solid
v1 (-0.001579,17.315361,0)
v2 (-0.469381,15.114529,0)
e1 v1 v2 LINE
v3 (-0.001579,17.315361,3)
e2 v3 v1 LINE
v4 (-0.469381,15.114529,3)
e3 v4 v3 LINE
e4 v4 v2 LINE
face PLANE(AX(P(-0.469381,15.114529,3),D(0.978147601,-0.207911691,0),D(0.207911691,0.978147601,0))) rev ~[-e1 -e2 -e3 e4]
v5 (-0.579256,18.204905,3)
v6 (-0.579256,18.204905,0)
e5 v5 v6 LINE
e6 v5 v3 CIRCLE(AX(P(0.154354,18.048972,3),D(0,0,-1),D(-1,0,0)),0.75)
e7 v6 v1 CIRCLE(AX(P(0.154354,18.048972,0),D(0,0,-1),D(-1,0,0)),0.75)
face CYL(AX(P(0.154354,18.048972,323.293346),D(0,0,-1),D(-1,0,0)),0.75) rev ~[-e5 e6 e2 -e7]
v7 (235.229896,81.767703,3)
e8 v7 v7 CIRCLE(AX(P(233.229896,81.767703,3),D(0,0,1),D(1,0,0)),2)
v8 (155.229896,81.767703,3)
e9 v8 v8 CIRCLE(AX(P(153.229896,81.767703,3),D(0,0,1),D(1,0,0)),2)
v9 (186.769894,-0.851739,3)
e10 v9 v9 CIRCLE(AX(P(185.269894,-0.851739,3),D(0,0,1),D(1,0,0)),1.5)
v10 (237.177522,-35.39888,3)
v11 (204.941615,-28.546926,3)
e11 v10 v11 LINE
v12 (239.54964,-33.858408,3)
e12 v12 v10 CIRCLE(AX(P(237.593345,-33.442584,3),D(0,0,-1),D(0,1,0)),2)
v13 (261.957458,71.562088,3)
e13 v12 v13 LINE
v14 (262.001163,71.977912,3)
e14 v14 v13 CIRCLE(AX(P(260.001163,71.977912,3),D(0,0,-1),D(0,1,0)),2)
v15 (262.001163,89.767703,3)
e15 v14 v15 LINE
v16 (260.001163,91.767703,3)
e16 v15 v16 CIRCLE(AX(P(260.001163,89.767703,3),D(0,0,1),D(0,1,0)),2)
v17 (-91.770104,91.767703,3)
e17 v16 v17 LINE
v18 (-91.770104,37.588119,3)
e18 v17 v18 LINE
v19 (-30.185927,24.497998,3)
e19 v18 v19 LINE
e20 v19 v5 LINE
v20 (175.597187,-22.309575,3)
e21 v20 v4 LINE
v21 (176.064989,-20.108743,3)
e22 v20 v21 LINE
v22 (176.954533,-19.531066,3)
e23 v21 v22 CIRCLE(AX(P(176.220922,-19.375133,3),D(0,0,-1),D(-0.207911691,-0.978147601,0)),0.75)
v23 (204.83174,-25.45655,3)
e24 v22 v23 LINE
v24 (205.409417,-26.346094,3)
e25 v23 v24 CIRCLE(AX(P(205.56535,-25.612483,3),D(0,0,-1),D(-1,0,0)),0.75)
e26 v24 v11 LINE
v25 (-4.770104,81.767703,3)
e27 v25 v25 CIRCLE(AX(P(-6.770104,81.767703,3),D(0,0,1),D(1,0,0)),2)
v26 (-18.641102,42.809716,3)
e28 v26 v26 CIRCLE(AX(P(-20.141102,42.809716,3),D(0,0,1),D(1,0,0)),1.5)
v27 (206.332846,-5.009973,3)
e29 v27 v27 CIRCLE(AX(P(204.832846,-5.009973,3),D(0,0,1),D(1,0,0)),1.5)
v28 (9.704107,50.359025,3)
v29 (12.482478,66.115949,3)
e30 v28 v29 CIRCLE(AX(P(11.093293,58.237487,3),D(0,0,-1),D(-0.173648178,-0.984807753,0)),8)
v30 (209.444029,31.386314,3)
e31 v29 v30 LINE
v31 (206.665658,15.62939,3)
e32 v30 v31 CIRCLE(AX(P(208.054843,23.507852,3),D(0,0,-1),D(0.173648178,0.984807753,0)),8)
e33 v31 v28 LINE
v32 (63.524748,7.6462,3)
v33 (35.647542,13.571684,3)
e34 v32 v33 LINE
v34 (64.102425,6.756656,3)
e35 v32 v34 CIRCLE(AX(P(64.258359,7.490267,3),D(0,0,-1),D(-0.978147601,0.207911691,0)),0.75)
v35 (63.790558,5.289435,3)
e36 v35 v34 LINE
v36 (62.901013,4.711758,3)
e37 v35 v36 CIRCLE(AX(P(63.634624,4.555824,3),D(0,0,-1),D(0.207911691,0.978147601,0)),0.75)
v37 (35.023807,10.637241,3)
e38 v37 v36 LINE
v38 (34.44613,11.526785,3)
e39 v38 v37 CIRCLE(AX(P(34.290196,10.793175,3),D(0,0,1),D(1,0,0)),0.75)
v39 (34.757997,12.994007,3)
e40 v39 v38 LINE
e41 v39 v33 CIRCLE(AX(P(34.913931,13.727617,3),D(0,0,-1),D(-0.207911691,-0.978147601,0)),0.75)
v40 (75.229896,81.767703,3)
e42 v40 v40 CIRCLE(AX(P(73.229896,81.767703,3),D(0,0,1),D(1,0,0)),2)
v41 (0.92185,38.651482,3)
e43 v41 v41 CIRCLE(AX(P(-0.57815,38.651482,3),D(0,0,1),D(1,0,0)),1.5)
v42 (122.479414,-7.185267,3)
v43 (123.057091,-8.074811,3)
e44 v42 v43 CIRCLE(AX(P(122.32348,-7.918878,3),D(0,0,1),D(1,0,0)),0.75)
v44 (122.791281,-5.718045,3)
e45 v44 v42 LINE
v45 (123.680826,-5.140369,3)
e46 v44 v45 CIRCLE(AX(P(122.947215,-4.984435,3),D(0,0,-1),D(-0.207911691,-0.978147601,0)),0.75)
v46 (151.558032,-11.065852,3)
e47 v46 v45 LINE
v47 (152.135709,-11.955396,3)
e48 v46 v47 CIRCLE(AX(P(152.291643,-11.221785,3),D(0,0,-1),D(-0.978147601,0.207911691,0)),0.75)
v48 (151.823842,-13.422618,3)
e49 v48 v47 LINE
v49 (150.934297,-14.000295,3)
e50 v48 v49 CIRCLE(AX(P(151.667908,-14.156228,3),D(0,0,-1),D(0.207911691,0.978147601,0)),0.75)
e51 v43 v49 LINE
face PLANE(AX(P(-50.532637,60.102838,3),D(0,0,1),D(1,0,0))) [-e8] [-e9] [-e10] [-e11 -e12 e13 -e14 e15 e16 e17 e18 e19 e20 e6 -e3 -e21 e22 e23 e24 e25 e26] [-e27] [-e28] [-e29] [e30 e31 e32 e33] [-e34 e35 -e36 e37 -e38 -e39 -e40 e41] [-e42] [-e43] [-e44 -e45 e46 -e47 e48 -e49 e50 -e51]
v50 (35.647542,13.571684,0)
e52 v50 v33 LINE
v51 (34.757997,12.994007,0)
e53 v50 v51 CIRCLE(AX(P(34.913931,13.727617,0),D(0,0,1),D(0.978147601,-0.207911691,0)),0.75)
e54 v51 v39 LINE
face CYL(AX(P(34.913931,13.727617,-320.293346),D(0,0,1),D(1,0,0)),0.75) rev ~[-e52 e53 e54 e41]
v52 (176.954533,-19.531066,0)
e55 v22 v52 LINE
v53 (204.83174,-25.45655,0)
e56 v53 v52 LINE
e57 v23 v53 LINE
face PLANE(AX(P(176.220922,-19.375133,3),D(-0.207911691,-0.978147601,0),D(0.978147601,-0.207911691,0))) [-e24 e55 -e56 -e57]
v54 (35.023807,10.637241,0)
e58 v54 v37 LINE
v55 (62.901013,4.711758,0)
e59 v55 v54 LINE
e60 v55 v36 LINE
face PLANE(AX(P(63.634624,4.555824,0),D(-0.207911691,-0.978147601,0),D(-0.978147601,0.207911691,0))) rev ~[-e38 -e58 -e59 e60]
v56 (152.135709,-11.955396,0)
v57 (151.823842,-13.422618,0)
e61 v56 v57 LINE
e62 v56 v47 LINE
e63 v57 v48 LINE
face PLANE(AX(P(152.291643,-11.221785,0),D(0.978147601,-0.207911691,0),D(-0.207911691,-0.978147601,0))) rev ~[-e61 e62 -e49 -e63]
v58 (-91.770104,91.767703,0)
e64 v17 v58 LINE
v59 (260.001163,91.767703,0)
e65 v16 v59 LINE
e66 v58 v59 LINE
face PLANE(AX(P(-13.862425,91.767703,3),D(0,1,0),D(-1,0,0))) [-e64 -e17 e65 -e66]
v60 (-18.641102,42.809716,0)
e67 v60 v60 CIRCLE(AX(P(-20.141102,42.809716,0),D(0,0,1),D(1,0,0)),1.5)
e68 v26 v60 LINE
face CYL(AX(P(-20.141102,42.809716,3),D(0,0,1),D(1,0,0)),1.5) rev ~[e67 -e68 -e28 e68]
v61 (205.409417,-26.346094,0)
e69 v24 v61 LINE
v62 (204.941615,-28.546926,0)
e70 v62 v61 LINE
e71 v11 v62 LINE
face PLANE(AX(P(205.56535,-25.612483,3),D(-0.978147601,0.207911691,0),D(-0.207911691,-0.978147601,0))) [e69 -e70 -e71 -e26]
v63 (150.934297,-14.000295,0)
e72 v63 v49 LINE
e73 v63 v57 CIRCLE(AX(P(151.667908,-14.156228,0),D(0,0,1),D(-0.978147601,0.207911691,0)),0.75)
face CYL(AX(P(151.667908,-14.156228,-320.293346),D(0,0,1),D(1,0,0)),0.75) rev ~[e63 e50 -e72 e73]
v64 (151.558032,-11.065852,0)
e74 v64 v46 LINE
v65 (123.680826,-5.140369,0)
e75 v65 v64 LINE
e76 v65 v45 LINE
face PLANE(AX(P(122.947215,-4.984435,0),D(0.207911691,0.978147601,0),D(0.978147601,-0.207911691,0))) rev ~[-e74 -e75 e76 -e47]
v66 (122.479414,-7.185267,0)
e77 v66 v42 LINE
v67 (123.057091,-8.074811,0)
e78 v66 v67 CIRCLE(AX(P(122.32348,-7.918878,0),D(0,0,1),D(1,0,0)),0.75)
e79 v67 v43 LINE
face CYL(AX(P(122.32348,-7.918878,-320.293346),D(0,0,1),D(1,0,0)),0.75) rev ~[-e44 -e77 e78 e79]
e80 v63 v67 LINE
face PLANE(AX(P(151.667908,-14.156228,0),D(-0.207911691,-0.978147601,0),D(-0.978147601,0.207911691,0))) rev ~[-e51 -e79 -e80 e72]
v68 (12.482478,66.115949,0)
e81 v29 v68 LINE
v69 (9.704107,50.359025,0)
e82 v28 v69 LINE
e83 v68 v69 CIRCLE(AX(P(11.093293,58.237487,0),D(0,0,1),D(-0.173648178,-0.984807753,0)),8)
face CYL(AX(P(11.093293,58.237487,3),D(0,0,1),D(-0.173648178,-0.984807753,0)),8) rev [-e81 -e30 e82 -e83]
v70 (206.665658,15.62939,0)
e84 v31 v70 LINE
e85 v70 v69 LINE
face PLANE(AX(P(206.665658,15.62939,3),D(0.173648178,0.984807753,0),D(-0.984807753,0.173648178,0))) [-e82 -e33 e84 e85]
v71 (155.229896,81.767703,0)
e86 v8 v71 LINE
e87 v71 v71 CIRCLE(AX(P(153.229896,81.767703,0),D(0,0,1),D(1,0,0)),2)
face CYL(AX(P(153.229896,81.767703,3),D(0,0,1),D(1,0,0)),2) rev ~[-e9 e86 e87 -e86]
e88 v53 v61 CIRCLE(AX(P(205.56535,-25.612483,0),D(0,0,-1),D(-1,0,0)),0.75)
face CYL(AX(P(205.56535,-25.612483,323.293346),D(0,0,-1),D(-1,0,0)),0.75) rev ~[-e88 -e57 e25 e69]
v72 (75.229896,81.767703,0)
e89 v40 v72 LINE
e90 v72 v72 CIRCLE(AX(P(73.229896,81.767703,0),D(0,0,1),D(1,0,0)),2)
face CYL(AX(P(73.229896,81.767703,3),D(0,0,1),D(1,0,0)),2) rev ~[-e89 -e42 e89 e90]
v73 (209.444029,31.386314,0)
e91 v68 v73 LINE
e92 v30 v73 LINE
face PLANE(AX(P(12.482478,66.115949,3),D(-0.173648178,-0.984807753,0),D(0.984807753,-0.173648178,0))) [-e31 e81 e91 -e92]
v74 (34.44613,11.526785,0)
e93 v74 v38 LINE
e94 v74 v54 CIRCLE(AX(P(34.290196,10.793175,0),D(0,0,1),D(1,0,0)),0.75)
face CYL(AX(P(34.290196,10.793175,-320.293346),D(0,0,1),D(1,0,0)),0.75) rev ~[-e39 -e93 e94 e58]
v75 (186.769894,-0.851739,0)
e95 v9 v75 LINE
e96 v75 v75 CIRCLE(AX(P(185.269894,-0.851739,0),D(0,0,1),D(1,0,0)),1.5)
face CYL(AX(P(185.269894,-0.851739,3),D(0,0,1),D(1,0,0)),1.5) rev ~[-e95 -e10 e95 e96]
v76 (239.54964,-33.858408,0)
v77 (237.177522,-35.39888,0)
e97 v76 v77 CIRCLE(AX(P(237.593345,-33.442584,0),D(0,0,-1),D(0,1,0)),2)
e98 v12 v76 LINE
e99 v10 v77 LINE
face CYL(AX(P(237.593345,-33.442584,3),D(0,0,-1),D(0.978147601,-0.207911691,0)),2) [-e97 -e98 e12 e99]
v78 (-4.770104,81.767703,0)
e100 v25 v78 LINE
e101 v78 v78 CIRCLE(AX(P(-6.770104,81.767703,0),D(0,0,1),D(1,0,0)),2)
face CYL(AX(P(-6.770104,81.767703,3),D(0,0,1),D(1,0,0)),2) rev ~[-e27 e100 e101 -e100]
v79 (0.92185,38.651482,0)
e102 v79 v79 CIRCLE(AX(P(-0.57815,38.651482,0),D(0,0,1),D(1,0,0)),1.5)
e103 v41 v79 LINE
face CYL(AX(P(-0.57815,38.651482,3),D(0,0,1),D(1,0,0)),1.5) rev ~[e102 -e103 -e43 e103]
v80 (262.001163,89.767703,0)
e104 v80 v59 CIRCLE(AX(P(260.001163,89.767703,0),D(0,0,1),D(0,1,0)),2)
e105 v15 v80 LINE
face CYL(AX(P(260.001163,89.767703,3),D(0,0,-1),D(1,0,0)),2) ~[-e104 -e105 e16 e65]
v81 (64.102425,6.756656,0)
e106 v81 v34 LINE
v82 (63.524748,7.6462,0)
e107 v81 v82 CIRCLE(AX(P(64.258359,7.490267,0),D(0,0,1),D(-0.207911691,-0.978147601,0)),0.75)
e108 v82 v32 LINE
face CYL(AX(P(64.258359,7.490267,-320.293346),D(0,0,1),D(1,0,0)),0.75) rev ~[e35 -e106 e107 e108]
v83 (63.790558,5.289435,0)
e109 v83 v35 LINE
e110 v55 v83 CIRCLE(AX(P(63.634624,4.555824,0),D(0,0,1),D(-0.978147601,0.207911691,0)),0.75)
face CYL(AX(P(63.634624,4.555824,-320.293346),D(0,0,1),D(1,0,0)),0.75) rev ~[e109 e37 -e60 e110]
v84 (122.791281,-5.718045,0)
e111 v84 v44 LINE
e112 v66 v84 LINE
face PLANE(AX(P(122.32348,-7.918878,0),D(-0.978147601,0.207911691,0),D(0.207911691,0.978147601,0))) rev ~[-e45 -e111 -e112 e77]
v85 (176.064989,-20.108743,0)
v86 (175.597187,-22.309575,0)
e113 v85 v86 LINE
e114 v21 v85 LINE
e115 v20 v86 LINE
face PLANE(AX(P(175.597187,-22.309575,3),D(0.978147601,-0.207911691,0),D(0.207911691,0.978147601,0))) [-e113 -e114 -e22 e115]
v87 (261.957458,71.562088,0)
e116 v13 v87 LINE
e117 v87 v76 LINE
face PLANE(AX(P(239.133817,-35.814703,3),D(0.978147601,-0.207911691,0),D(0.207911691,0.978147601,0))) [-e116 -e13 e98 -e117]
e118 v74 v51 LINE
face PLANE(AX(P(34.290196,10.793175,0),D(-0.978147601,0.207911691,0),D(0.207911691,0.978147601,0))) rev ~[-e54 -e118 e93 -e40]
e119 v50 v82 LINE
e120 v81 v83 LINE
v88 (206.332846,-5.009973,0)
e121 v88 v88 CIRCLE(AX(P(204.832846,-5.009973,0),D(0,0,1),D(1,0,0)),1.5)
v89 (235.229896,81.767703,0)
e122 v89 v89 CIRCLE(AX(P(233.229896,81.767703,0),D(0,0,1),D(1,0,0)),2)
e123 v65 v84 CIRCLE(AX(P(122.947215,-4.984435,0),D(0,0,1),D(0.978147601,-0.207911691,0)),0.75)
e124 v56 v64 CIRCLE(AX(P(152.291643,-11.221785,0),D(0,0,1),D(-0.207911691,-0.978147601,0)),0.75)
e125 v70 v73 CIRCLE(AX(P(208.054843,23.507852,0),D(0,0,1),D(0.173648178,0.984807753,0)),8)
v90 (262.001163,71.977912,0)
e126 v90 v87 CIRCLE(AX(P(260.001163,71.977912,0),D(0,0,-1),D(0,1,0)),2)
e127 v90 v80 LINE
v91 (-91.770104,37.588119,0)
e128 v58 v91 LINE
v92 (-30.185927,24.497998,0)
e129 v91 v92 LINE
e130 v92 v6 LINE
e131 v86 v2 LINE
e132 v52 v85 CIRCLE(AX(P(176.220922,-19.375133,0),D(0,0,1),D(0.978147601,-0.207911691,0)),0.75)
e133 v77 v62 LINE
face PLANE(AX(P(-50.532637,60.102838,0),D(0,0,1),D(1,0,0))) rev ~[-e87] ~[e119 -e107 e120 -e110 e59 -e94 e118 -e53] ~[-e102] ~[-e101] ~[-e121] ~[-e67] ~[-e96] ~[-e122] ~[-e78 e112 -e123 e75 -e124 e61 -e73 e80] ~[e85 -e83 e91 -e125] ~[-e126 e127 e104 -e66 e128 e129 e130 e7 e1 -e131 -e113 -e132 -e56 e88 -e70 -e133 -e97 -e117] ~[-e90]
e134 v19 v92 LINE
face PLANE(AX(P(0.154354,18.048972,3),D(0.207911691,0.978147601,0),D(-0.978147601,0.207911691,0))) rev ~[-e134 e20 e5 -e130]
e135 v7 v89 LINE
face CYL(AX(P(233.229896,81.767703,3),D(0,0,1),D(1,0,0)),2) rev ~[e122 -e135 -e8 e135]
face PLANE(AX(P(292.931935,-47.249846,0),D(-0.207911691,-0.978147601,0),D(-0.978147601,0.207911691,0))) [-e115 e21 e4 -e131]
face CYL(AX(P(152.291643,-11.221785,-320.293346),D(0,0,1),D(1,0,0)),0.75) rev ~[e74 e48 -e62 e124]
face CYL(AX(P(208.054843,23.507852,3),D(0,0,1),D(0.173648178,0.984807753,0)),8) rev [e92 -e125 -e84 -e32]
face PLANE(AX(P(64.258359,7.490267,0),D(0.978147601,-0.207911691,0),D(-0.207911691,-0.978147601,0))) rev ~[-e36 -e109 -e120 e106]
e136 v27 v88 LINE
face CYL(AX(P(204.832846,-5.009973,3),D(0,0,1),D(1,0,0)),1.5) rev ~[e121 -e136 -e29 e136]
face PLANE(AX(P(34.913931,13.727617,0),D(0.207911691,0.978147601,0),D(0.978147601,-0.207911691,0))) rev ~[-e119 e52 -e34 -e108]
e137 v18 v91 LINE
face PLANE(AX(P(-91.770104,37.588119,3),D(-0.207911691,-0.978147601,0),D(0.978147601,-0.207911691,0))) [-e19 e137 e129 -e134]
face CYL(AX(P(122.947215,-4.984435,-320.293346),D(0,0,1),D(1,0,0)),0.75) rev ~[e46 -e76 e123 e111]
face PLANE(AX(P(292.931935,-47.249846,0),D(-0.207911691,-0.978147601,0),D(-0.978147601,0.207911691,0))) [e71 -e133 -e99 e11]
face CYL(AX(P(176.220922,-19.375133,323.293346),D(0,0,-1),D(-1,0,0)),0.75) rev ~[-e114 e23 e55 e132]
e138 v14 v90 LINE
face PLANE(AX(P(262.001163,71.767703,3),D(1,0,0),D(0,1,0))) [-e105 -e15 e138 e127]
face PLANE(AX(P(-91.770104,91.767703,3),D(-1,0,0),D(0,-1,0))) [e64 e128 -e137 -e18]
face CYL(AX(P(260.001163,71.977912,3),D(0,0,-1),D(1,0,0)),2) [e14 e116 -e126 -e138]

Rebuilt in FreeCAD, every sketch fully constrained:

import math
import FreeCAD as App
import Part
import Sketcher
Q = App.Units.Quantity


def edges_at(feature, points):
    """Names of the edges that pass closest to the given points."""
    edges = feature.Shape.Edges
    near = lambda p: min(range(len(edges)), key=lambda i: edges[i].distToShape(Part.Vertex(*p))[0])
    return sorted({f"Edge{near(p) + 1}" for p in points})

doc = App.newDocument("Part")
body = doc.addObject("PartDesign::Body", "Body")

# Sketch on XY plane
sketch1 = body.newObject("Sketcher::SketchObject", "Sketch")
sketch1.AttachmentSupport = (doc.getObject("XY_Plane"), [""])
sketch1.MapMode = "FlatFace"
sketch1.addGeometry(Part.LineSegment(App.Vector(318.229896, 71.767703, 0), App.Vector(-31.770104, 71.767703, 0)), False)
sketch1.addGeometry(Part.LineSegment(App.Vector(-31.770104, 71.767703, 0), App.Vector(-31.770104, 21.767703, 0)), False)
sketch1.addGeometry(Part.LineSegment(App.Vector(-31.770104, 21.767703, 0), App.Vector(292.931935, -47.249846, 0)), False)
sketch1.addGeometry(Part.LineSegment(App.Vector(292.931935, -47.249846, 0), App.Vector(318.229896, 71.767703, 0)), False)
sketch1.addConstraint(Sketcher.Constraint("Coincident", 0, 2, 1, 1))
sketch1.addConstraint(Sketcher.Constraint("Coincident", 1, 2, 2, 1))
sketch1.addConstraint(Sketcher.Constraint("Coincident", 2, 2, 3, 1))
sketch1.addConstraint(Sketcher.Constraint("Coincident", 3, 2, 0, 1))
sketch1.addConstraint(Sketcher.Constraint("Horizontal", 0))
sketch1.addConstraint(Sketcher.Constraint("Vertical", 1))
sketch1.addConstraint(Sketcher.Constraint("Perpendicular", 2, 3))
sketch1.addConstraint(Sketcher.Constraint("DistanceX", 0, 2, 0, 1, Q("350 mm")))
sketch1.addConstraint(Sketcher.Constraint("DistanceY", 1, 2, 1, 1, Q("50 mm")))
sketch1.addConstraint(Sketcher.Constraint("Angle", 2, Q("-12 deg")))
sketch1.addConstraint(Sketcher.Constraint("DistanceX", 0, 2, -1, 1, Q("31.770104 mm")))
sketch1.addConstraint(Sketcher.Constraint("DistanceY", -1, 1, 0, 2, Q("71.767703 mm")))
pad1 = body.newObject("PartDesign::Pad", "Pad")
pad1.Profile = sketch1
pad1.Length = 3

# Sketch on XY plane
sketch2 = body.newObject("Sketcher::SketchObject", "Sketch001")
sketch2.AttachmentSupport = (doc.getObject("XY_Plane"), [""])
sketch2.MapMode = "FlatFace"
sketch2.AttachmentOffset = App.Placement(App.Vector(0, 0, 3), App.Rotation())
sketch2.addGeometry(Part.LineSegment(App.Vector(-0.469381, 15.114529, 0), App.Vector(0.154354, 18.048972, 0)), False)
sketch2.addGeometry(Part.LineSegment(App.Vector(0.154354, 18.048972, 0), App.Vector(-31.770104, 24.834725, 0)), False)
sketch2.addGeometry(Part.LineSegment(App.Vector(-31.770104, 24.834725, 0), App.Vector(-31.770104, 21.767703, 0)), False)
sketch2.addGeometry(Part.LineSegment(App.Vector(-31.770104, 21.767703, 0), App.Vector(-0.469381, 15.114529, 0)), False)
sketch2.addGeometry(Part.LineSegment(App.Vector(205.56535, -25.612483, 0), App.Vector(176.220922, -19.375133, 0)), False)
sketch2.addGeometry(Part.LineSegment(App.Vector(176.220922, -19.375133, 0), App.Vector(175.597187, -22.309575, 0)), False)
sketch2.addGeometry(Part.LineSegment(App.Vector(175.597187, -22.309575, 0), App.Vector(204.941615, -28.546926, 0)), False)
sketch2.addGeometry(Part.LineSegment(App.Vector(204.941615, -28.546926, 0), App.Vector(205.56535, -25.612483, 0)), False)
sketch2.addConstraint(Sketcher.Constraint("Coincident", 0, 2, 1, 1))
sketch2.addConstraint(Sketcher.Constraint("Coincident", 1, 2, 2, 1))
sketch2.addConstraint(Sketcher.Constraint("Coincident", 2, 2, 3, 1))
sketch2.addConstraint(Sketcher.Constraint("Coincident", 3, 2, 0, 1))
sketch2.addConstraint(Sketcher.Constraint("Coincident", 4, 2, 5, 1))
sketch2.addConstraint(Sketcher.Constraint("Coincident", 5, 2, 6, 1))
sketch2.addConstraint(Sketcher.Constraint("Coincident", 6, 2, 7, 1))
sketch2.addConstraint(Sketcher.Constraint("Coincident", 7, 2, 4, 1))
sketch2.addConstraint(Sketcher.Constraint("Vertical", 2))
sketch2.addConstraint(Sketcher.Constraint("Perpendicular", 0, 1))
sketch2.addConstraint(Sketcher.Constraint("Parallel", 1, 3))
sketch2.addConstraint(Sketcher.Constraint("Parallel", 3, 4))
sketch2.addConstraint(Sketcher.Constraint("Perpendicular", 4, 5))
sketch2.addConstraint(Sketcher.Constraint("Perpendicular", 5, 6))
sketch2.addConstraint(Sketcher.Constraint("Perpendicular", 6, 7))
sketch2.addConstraint(Sketcher.Constraint("Equal", 0, 5))
sketch2.addConstraint(Sketcher.Constraint("Angle", 0, Q("78 deg")))
sketch2.addConstraint(Sketcher.Constraint("Distance", 0, Q("3 mm")))
sketch2.addConstraint(Sketcher.Constraint("Distance", 3, Q("32 mm")))
sketch2.addConstraint(Sketcher.Constraint("Distance", 4, Q("30 mm")))
sketch2.addConstraint(Sketcher.Constraint("DistanceY", 5, 2, 1, 2, Q("47.1443 mm")))
sketch2.addConstraint(Sketcher.Constraint("DistanceY", -1, 1, 0, 2, Q("18.048972 mm")))
sketch2.addConstraint(Sketcher.Constraint("DistanceX", 3, 2, -1, 1, Q("0.469381 mm")))
sketch2.addConstraint(Sketcher.Constraint("DistanceX", -1, 1, 7, 2, Q("205.56535 mm")))
pocket1 = body.newObject("PartDesign::Pocket", "Pocket")
pocket1.Profile = sketch2
pocket1.Length = 10

# Sketch on XY plane
sketch3 = body.newObject("Sketcher::SketchObject", "Sketch002")
sketch3.AttachmentSupport = (doc.getObject("XY_Plane"), [""])
sketch3.MapMode = "FlatFace"
sketch3.AttachmentOffset = App.Placement(App.Vector(0, 0, 3), App.Rotation())
sketch3.addGeometry(Part.LineSegment(App.Vector(239.133817, -35.814703, 0), App.Vector(292.931935, -47.249846, 0)), False)
sketch3.addGeometry(Part.LineSegment(App.Vector(292.931935, -47.249846, 0), App.Vector(318.229896, 71.767703, 0)), False)
sketch3.addGeometry(Part.LineSegment(App.Vector(318.229896, 71.767703, 0), App.Vector(262.001163, 71.767703, 0)), False)
sketch3.addGeometry(Part.LineSegment(App.Vector(262.001163, 71.767703, 0), App.Vector(239.133817, -35.814703, 0)), False)
sketch3.addConstraint(Sketcher.Constraint("Coincident", 0, 2, 1, 1))
sketch3.addConstraint(Sketcher.Constraint("Coincident", 1, 2, 2, 1))
sketch3.addConstraint(Sketcher.Constraint("Coincident", 2, 2, 3, 1))
sketch3.addConstraint(Sketcher.Constraint("Coincident", 3, 2, 0, 1))
sketch3.addConstraint(Sketcher.Constraint("Horizontal", 2))
sketch3.addConstraint(Sketcher.Constraint("Perpendicular", 0, 1))
sketch3.addConstraint(Sketcher.Constraint("Parallel", 1, 3))
sketch3.addConstraint(Sketcher.Constraint("Angle", 0, Q("-12 deg")))
sketch3.addConstraint(Sketcher.Constraint("Distance", 0, Q("55 mm")))
sketch3.addConstraint(Sketcher.Constraint("Distance", 1, Q("121.676472 mm")))
sketch3.addConstraint(Sketcher.Constraint("DistanceX", -1, 1, 0, 2, Q("292.931935 mm")))
sketch3.addConstraint(Sketcher.Constraint("DistanceY", 0, 2, -1, 1, Q("47.249846 mm")))
pocket2 = body.newObject("PartDesign::Pocket", "Pocket001")
pocket2.Profile = sketch3
pocket2.Type = "ThroughAll"

# Sketch on XY plane
sketch4 = body.newObject("Sketcher::SketchObject", "Sketch003")
sketch4.AttachmentSupport = (doc.getObject("XY_Plane"), [""])
sketch4.MapMode = "FlatFace"
sketch4.AttachmentOffset = App.Placement(App.Vector(0, 0, 3), App.Rotation())
sketch4.addGeometry(Part.LineSegment(App.Vector(-31.770104, 91.767703, 0), App.Vector(-31.770104, 71.767703, 0)), False)
sketch4.addGeometry(Part.LineSegment(App.Vector(-31.770104, 71.767703, 0), App.Vector(262.001163, 71.767703, 0)), False)
sketch4.addGeometry(Part.LineSegment(App.Vector(262.001163, 71.767703, 0), App.Vector(262.001163, 91.767703, 0)), False)
sketch4.addGeometry(Part.LineSegment(App.Vector(262.001163, 91.767703, 0), App.Vector(-31.770104, 91.767703, 0)), False)
sketch4.addConstraint(Sketcher.Constraint("Coincident", 0, 2, 1, 1))
sketch4.addConstraint(Sketcher.Constraint("Coincident", 1, 2, 2, 1))
sketch4.addConstraint(Sketcher.Constraint("Coincident", 2, 2, 3, 1))
sketch4.addConstraint(Sketcher.Constraint("Coincident", 3, 2, 0, 1))
sketch4.addConstraint(Sketcher.Constraint("Vertical", 0))
sketch4.addConstraint(Sketcher.Constraint("Horizontal", 1))
sketch4.addConstraint(Sketcher.Constraint("Vertical", 2))
sketch4.addConstraint(Sketcher.Constraint("Horizontal", 3))
sketch4.addConstraint(Sketcher.Constraint("DistanceY", 0, 2, 0, 1, Q("20 mm")))
sketch4.addConstraint(Sketcher.Constraint("DistanceX", 1, 1, 1, 2, Q("293.771267 mm")))
sketch4.addConstraint(Sketcher.Constraint("DistanceX", 0, 2, -1, 1, Q("31.770104 mm")))
sketch4.addConstraint(Sketcher.Constraint("DistanceY", -1, 1, 0, 2, Q("71.767703 mm")))
pad2 = body.newObject("PartDesign::Pad", "Pad001")
pad2.Profile = sketch4
pad2.Length = 3
pad2.Reversed = True

# Sketch on XY plane
sketch5 = body.newObject("Sketcher::SketchObject", "Sketch004")
sketch5.AttachmentSupport = (doc.getObject("XY_Plane"), [""])
sketch5.MapMode = "FlatFace"
sketch5.AttachmentOffset = App.Placement(App.Vector(0, 0, 3), App.Rotation())
sketch5.addGeometry(Part.Circle(App.Vector(-6.770104, 81.767703, 0), App.Vector(0, 0, 1), 2), False)
sketch5.addGeometry(Part.Circle(App.Vector(73.229896, 81.767703, 0), App.Vector(0, 0, 1), 2), False)
sketch5.addGeometry(Part.Circle(App.Vector(153.229896, 81.767703, 0), App.Vector(0, 0, 1), 2), False)
sketch5.addGeometry(Part.Circle(App.Vector(233.229896, 81.767703, 0), App.Vector(0, 0, 1), 2), False)
sketch5.addConstraint(Sketcher.Constraint("Equal", 0, 1))
sketch5.addConstraint(Sketcher.Constraint("Equal", 1, 2))
sketch5.addConstraint(Sketcher.Constraint("Equal", 2, 3))
sketch5.addConstraint(Sketcher.Constraint("Horizontal", 0, 3, 1, 3))
sketch5.addConstraint(Sketcher.Constraint("Horizontal", 1, 3, 2, 3))
sketch5.addConstraint(Sketcher.Constraint("Horizontal", 2, 3, 3, 3))
sketch5.addConstraint(Sketcher.Constraint("Diameter", 0, Q("4 mm")))
sketch5.addConstraint(Sketcher.Constraint("DistanceX", 0, 3, 1, 3, Q("80 mm")))
sketch5.addConstraint(Sketcher.Constraint("DistanceX", 1, 3, 2, 3, Q("80 mm")))
sketch5.addConstraint(Sketcher.Constraint("DistanceX", 2, 3, 3, 3, Q("80 mm")))
sketch5.addConstraint(Sketcher.Constraint("DistanceX", 0, 3, -1, 1, Q("6.770104 mm")))
sketch5.addConstraint(Sketcher.Constraint("DistanceY", -1, 1, 0, 3, Q("81.767703 mm")))
pocket3 = body.newObject("PartDesign::Pocket", "Pocket002")
pocket3.Profile = sketch5
pocket3.Type = "ThroughAll"

# Sketch on XY plane
sketch6 = body.newObject("Sketcher::SketchObject", "Sketch005")
sketch6.AttachmentSupport = (doc.getObject("XY_Plane"), [""])
sketch6.MapMode = "FlatFace"
sketch6.AttachmentOffset = App.Placement(App.Vector(0, 0, 3), App.Rotation())
sketch6.addGeometry(Part.LineSegment(App.Vector(209.444029, 31.386314, 0), App.Vector(12.482478, 66.115949, 0)), False)
sketch6.addGeometry(Part.ArcOfCircle(Part.Circle(App.Vector(11.093293, 58.237487, 0), App.Vector(0, 0, 1), 8), math.radians(80), math.radians(260)), False)
sketch6.addGeometry(Part.LineSegment(App.Vector(9.704107, 50.359025, 0), App.Vector(206.665658, 15.62939, 0)), False)
sketch6.addGeometry(Part.ArcOfCircle(Part.Circle(App.Vector(208.054843, 23.507852, 0), App.Vector(0, 0, 1), 8), math.radians(-100), math.radians(80)), False)
sketch6.addConstraint(Sketcher.Constraint("Tangent", 0, 2, 1, 1))
sketch6.addConstraint(Sketcher.Constraint("Tangent", 1, 2, 2, 1))
sketch6.addConstraint(Sketcher.Constraint("Tangent", 2, 2, 3, 1))
sketch6.addConstraint(Sketcher.Constraint("Tangent", 3, 2, 0, 1))
sketch6.addConstraint(Sketcher.Constraint("Equal", 1, 3))
sketch6.addConstraint(Sketcher.Constraint("Radius", 1, Q("8 mm")))
sketch6.addConstraint(Sketcher.Constraint("Angle", 0, Q("170 deg")))
sketch6.addConstraint(Sketcher.Constraint("Distance", 0, Q("200 mm")))
sketch6.addConstraint(Sketcher.Constraint("DistanceY", -1, 1, 3, 3, Q("23.507852 mm")))
sketch6.addConstraint(Sketcher.Constraint("DistanceX", -1, 1, 0, 2, Q("12.482478 mm")))
pocket4 = body.newObject("PartDesign::Pocket", "Pocket003")
pocket4.Profile = sketch6
pocket4.Length = 10

# Sketch on XY plane
sketch7 = body.newObject("Sketcher::SketchObject", "Sketch006")
sketch7.AttachmentSupport = (doc.getObject("XY_Plane"), [""])
sketch7.MapMode = "FlatFace"
sketch7.AttachmentOffset = App.Placement(App.Vector(0, 0, 3), App.Rotation())
sketch7.addGeometry(Part.Circle(App.Vector(0.154354, 18.048972, 0), App.Vector(0, 0, 1), 0.75), False)
sketch7.addGeometry(Part.Circle(App.Vector(176.220922, -19.375133, 0), App.Vector(0, 0, 1), 0.75), False)
sketch7.addGeometry(Part.Circle(App.Vector(205.56535, -25.612483, 0), App.Vector(0, 0, 1), 0.75), False)
sketch7.addConstraint(Sketcher.Constraint("Equal", 0, 1))
sketch7.addConstraint(Sketcher.Constraint("Equal", 1, 2))
sketch7.addConstraint(Sketcher.Constraint("Diameter", 0, Q("1.5 mm")))
sketch7.addConstraint(Sketcher.Constraint("DistanceY", -1, 1, 0, 3, Q("18.048972 mm")))
sketch7.addConstraint(Sketcher.Constraint("DistanceX", -1, 1, 2, 3, Q("205.56535 mm")))
sketch7.addConstraint(Sketcher.Constraint("DistanceX", 0, 3, 1, 3, Q("176.066568 mm")))
sketch7.addConstraint(Sketcher.Constraint("DistanceX", 1, 3, 2, 3, Q("29.344428 mm")))
sketch7.addConstraint(Sketcher.Constraint("DistanceY", 2, 3, 1, 3, Q("6.237351 mm")))
sketch7.addConstraint(Sketcher.Constraint("DistanceY", 1, 3, -1, 1, Q("19.375133 mm")))
doc.recompute()
hole = body.newObject("PartDesign::Hole", "Hole")
hole.Profile = sketch7
hole.ThreadType = "None"
hole.Diameter = 1.5
hole.DepthType = "ThroughAll"

# Sketch on XY plane
sketch8 = body.newObject("Sketcher::SketchObject", "Sketch007")
sketch8.AttachmentSupport = (doc.getObject("XY_Plane"), [""])
sketch8.MapMode = "FlatFace"
sketch8.addGeometry(Part.LineSegment(App.Vector(152.291643, -11.221785, 0), App.Vector(151.667908, -14.156228, 0)), False)
sketch8.addGeometry(Part.LineSegment(App.Vector(151.667908, -14.156228, 0), App.Vector(122.32348, -7.918878, 0)), False)
sketch8.addGeometry(Part.LineSegment(App.Vector(122.32348, -7.918878, 0), App.Vector(122.947215, -4.984435, 0)), False)
sketch8.addGeometry(Part.LineSegment(App.Vector(122.947215, -4.984435, 0), App.Vector(152.291643, -11.221785, 0)), False)
sketch8.addGeometry(Part.LineSegment(App.Vector(64.258359, 7.490267, 0), App.Vector(63.634624, 4.555824, 0)), False)
sketch8.addGeometry(Part.LineSegment(App.Vector(63.634624, 4.555824, 0), App.Vector(34.290196, 10.793175, 0)), False)
sketch8.addGeometry(Part.LineSegment(App.Vector(34.290196, 10.793175, 0), App.Vector(34.913931, 13.727617, 0)), False)
sketch8.addGeometry(Part.LineSegment(App.Vector(34.913931, 13.727617, 0), App.Vector(64.258359, 7.490267, 0)), False)
sketch8.addConstraint(Sketcher.Constraint("Coincident", 0, 2, 1, 1))
sketch8.addConstraint(Sketcher.Constraint("Coincident", 1, 2, 2, 1))
sketch8.addConstraint(Sketcher.Constraint("Coincident", 2, 2, 3, 1))
sketch8.addConstraint(Sketcher.Constraint("Coincident", 3, 2, 0, 1))
sketch8.addConstraint(Sketcher.Constraint("Coincident", 4, 2, 5, 1))
sketch8.addConstraint(Sketcher.Constraint("Coincident", 5, 2, 6, 1))
sketch8.addConstraint(Sketcher.Constraint("Coincident", 6, 2, 7, 1))
sketch8.addConstraint(Sketcher.Constraint("Coincident", 7, 2, 4, 1))
sketch8.addConstraint(Sketcher.Constraint("Perpendicular", 0, 1))
sketch8.addConstraint(Sketcher.Constraint("Perpendicular", 1, 2))
sketch8.addConstraint(Sketcher.Constraint("Perpendicular", 2, 3))
sketch8.addConstraint(Sketcher.Constraint("Perpendicular", 3, 4))
sketch8.addConstraint(Sketcher.Constraint("Perpendicular", 4, 5))
sketch8.addConstraint(Sketcher.Constraint("Perpendicular", 5, 6))
sketch8.addConstraint(Sketcher.Constraint("Perpendicular", 6, 7))
sketch8.addConstraint(Sketcher.Constraint("Equal", 2, 4))
sketch8.addConstraint(Sketcher.Constraint("Equal", 3, 5))
sketch8.addConstraint(Sketcher.Constraint("Angle", 0, Q("-102 deg")))
sketch8.addConstraint(Sketcher.Constraint("Distance", 0, Q("3 mm")))
sketch8.addConstraint(Sketcher.Constraint("Distance", 1, Q("30 mm")))
sketch8.addConstraint(Sketcher.Constraint("DistanceY", 1, 2, 4, 2, Q("12.474701 mm")))
sketch8.addConstraint(Sketcher.Constraint("DistanceY", 0, 2, -1, 1, Q("14.156228 mm")))
sketch8.addConstraint(Sketcher.Constraint("DistanceX", -1, 1, 1, 2, Q("122.32348 mm")))
sketch8.addConstraint(Sketcher.Constraint("DistanceX", -1, 1, 6, 2, Q("34.913931 mm")))
pocket5 = body.newObject("PartDesign::Pocket", "Pocket004")
pocket5.Profile = sketch8
pocket5.Type = "ThroughAll"
pocket5.Reversed = True

# Sketch on XY plane
sketch9 = body.newObject("Sketcher::SketchObject", "Sketch008")
sketch9.AttachmentSupport = (doc.getObject("XY_Plane"), [""])
sketch9.MapMode = "FlatFace"
sketch9.addGeometry(Part.Circle(App.Vector(152.291643, -11.221785, 0), App.Vector(0, 0, 1), 0.75), False)
sketch9.addGeometry(Part.Circle(App.Vector(151.667908, -14.156228, 0), App.Vector(0, 0, 1), 0.75), False)
sketch9.addGeometry(Part.Circle(App.Vector(122.32348, -7.918878, 0), App.Vector(0, 0, 1), 0.75), False)
sketch9.addGeometry(Part.Circle(App.Vector(122.947215, -4.984435, 0), App.Vector(0, 0, 1), 0.75), False)
sketch9.addGeometry(Part.Circle(App.Vector(64.258359, 7.490267, 0), App.Vector(0, 0, 1), 0.75), False)
sketch9.addGeometry(Part.Circle(App.Vector(63.634624, 4.555824, 0), App.Vector(0, 0, 1), 0.75), False)
sketch9.addGeometry(Part.Circle(App.Vector(34.290196, 10.793175, 0), App.Vector(0, 0, 1), 0.75), False)
sketch9.addGeometry(Part.Circle(App.Vector(34.913931, 13.727617, 0), App.Vector(0, 0, 1), 0.75), False)
sketch9.addConstraint(Sketcher.Constraint("Equal", 0, 1))
sketch9.addConstraint(Sketcher.Constraint("Equal", 1, 2))
sketch9.addConstraint(Sketcher.Constraint("Equal", 2, 3))
sketch9.addConstraint(Sketcher.Constraint("Equal", 3, 4))
sketch9.addConstraint(Sketcher.Constraint("Equal", 4, 5))
sketch9.addConstraint(Sketcher.Constraint("Equal", 5, 6))
sketch9.addConstraint(Sketcher.Constraint("Equal", 6, 7))
sketch9.addConstraint(Sketcher.Constraint("Diameter", 0, Q("1.5 mm")))
sketch9.addConstraint(Sketcher.Constraint("DistanceY", 3, 3, 4, 3, Q("12.474701 mm")))
sketch9.addConstraint(Sketcher.Constraint("DistanceY", 2, 3, 5, 3, Q("12.474701 mm")))
sketch9.addConstraint(Sketcher.Constraint("DistanceY", 1, 3, -1, 1, Q("14.156228 mm")))
sketch9.addConstraint(Sketcher.Constraint("DistanceX", -1, 1, 2, 3, Q("122.32348 mm")))
sketch9.addConstraint(Sketcher.Constraint("DistanceX", -1, 1, 4, 3, Q("64.258359 mm")))
sketch9.addConstraint(Sketcher.Constraint("DistanceX", -1, 1, 7, 3, Q("34.913931 mm")))
sketch9.addConstraint(Sketcher.Constraint("DistanceX", 2, 3, 1, 3, Q("29.344428 mm")))
sketch9.addConstraint(Sketcher.Constraint("DistanceY", 1, 3, 2, 3, Q("6.237351 mm")))
sketch9.addConstraint(Sketcher.Constraint("DistanceX", 3, 3, 0, 3, Q("29.344428 mm")))
sketch9.addConstraint(Sketcher.Constraint("DistanceY", 0, 3, 3, 3, Q("6.237351 mm")))
sketch9.addConstraint(Sketcher.Constraint("DistanceX", 5, 3, 3, 3, Q("59.312591 mm")))
sketch9.addConstraint(Sketcher.Constraint("DistanceY", 3, 3, 5, 3, Q("9.540259 mm")))
sketch9.addConstraint(Sketcher.Constraint("DistanceX", 6, 3, 5, 3, Q("29.344428 mm")))
sketch9.addConstraint(Sketcher.Constraint("DistanceY", 5, 3, 6, 3, Q("6.237351 mm")))
sketch9.addConstraint(Sketcher.Constraint("DistanceY", 4, 3, 7, 3, Q("6.237351 mm")))
sketch9.addConstraint(Sketcher.Constraint("DistanceX", -1, 1, 0, 3, Q("152.291643 mm")))
doc.recompute()
hole2 = body.newObject("PartDesign::Hole", "Hole001")
hole2.Profile = sketch9
hole2.ThreadType = "None"
hole2.Diameter = 1.5
hole2.DepthType = "ThroughAll"
hole2.Reversed = True
doc.recompute()

fillet = body.newObject("PartDesign::Fillet", "Fillet")
fillet.Base = (hole2, edges_at(hole2, [
    (-31.77, 24.835, 1.5),
    (239.134, -35.815, 1.5),
    (262.001, 71.768, 1.5),
    (-31.77, 91.768, 1.5),
    (262.001, 91.768, 1.5),
]))
fillet.Radius = 2

# Sketch on XY plane
sketch10 = body.newObject("Sketcher::SketchObject", "Sketch009")
sketch10.AttachmentSupport = (doc.getObject("XY_Plane"), [""])
sketch10.MapMode = "FlatFace"
sketch10.AttachmentOffset = App.Placement(App.Vector(0, 0, 3), App.Rotation())
sketch10.addGeometry(Part.LineSegment(App.Vector(-91.770104, 37.588119, 0), App.Vector(-13.862425, 21.02833, 0)), False)
sketch10.addGeometry(Part.LineSegment(App.Vector(-13.862425, 21.02833, 0), App.Vector(-13.862425, 91.767703, 0)), False)
sketch10.addGeometry(Part.LineSegment(App.Vector(-13.862425, 91.767703, 0), App.Vector(-91.770104, 91.767703, 0)), False)
sketch10.addGeometry(Part.LineSegment(App.Vector(-91.770104, 91.767703, 0), App.Vector(-91.770104, 37.588119, 0)), False)
sketch10.addConstraint(Sketcher.Constraint("Coincident", 0, 2, 1, 1))
sketch10.addConstraint(Sketcher.Constraint("Coincident", 1, 2, 2, 1))
sketch10.addConstraint(Sketcher.Constraint("Coincident", 2, 2, 3, 1))
sketch10.addConstraint(Sketcher.Constraint("Coincident", 3, 2, 0, 1))
sketch10.addConstraint(Sketcher.Constraint("Vertical", 1))
sketch10.addConstraint(Sketcher.Constraint("Horizontal", 2))
sketch10.addConstraint(Sketcher.Constraint("Vertical", 3))
sketch10.addConstraint(Sketcher.Constraint("Angle", 0, Q("-12 deg")))
sketch10.addConstraint(Sketcher.Constraint("DistanceX", 2, 2, 2, 1, Q("77.907679 mm")))
sketch10.addConstraint(Sketcher.Constraint("DistanceY", 1, 1, 1, 2, Q("70.739373 mm")))
sketch10.addConstraint(Sketcher.Constraint("DistanceY", -1, 1, 0, 2, Q("21.02833 mm")))
sketch10.addConstraint(Sketcher.Constraint("DistanceX", 0, 2, -1, 1, Q("13.862425 mm")))
pad3 = body.newObject("PartDesign::Pad", "Pad002")
pad3.Profile = sketch10
pad3.Length = 3
pad3.Reversed = True

# Sketch on XY plane
sketch11 = body.newObject("Sketcher::SketchObject", "Sketch010")
sketch11.AttachmentSupport = (doc.getObject("XY_Plane"), [""])
sketch11.MapMode = "FlatFace"
sketch11.AttachmentOffset = App.Placement(App.Vector(0, 0, 3), App.Rotation())
sketch11.addGeometry(Part.Circle(App.Vector(-20.141102, 42.809716, 0), App.Vector(0, 0, 1), 1.5), False)
sketch11.addGeometry(Part.Circle(App.Vector(-0.57815, 38.651482, 0), App.Vector(0, 0, 1), 1.5), False)
sketch11.addGeometry(Part.Circle(App.Vector(185.269894, -0.851739, 0), App.Vector(0, 0, 1), 1.5), False)
sketch11.addGeometry(Part.Circle(App.Vector(204.832846, -5.009973, 0), App.Vector(0, 0, 1), 1.5), False)
sketch11.addConstraint(Sketcher.Constraint("Equal", 0, 1))
sketch11.addConstraint(Sketcher.Constraint("Equal", 1, 2))
sketch11.addConstraint(Sketcher.Constraint("Equal", 2, 3))
sketch11.addConstraint(Sketcher.Constraint("Diameter", 0, Q("3 mm")))
sketch11.addConstraint(Sketcher.Constraint("DistanceX", 0, 3, -1, 1, Q("20.141102 mm")))
sketch11.addConstraint(Sketcher.Constraint("DistanceX", 1, 3, -1, 1, Q("0.57815 mm")))
sketch11.addConstraint(Sketcher.Constraint("DistanceY", 2, 3, -1, 1, Q("0.851739 mm")))
sketch11.addConstraint(Sketcher.Constraint("DistanceY", 2, 3, 1, 3, Q("39.503221 mm")))
sketch11.addConstraint(Sketcher.Constraint("DistanceX", 0, 3, 3, 3, Q("224.973948 mm")))
sketch11.addConstraint(Sketcher.Constraint("DistanceY", 3, 3, 0, 3, Q("47.819689 mm")))
sketch11.addConstraint(Sketcher.Constraint("DistanceY", -1, 1, 0, 3, Q("42.809716 mm")))
sketch11.addConstraint(Sketcher.Constraint("DistanceX", -1, 1, 2, 3, Q("185.269894 mm")))
pocket6 = body.newObject("PartDesign::Pocket", "Pocket005")
pocket6.Profile = sketch11
pocket6.Length = 10

doc.recompute()
